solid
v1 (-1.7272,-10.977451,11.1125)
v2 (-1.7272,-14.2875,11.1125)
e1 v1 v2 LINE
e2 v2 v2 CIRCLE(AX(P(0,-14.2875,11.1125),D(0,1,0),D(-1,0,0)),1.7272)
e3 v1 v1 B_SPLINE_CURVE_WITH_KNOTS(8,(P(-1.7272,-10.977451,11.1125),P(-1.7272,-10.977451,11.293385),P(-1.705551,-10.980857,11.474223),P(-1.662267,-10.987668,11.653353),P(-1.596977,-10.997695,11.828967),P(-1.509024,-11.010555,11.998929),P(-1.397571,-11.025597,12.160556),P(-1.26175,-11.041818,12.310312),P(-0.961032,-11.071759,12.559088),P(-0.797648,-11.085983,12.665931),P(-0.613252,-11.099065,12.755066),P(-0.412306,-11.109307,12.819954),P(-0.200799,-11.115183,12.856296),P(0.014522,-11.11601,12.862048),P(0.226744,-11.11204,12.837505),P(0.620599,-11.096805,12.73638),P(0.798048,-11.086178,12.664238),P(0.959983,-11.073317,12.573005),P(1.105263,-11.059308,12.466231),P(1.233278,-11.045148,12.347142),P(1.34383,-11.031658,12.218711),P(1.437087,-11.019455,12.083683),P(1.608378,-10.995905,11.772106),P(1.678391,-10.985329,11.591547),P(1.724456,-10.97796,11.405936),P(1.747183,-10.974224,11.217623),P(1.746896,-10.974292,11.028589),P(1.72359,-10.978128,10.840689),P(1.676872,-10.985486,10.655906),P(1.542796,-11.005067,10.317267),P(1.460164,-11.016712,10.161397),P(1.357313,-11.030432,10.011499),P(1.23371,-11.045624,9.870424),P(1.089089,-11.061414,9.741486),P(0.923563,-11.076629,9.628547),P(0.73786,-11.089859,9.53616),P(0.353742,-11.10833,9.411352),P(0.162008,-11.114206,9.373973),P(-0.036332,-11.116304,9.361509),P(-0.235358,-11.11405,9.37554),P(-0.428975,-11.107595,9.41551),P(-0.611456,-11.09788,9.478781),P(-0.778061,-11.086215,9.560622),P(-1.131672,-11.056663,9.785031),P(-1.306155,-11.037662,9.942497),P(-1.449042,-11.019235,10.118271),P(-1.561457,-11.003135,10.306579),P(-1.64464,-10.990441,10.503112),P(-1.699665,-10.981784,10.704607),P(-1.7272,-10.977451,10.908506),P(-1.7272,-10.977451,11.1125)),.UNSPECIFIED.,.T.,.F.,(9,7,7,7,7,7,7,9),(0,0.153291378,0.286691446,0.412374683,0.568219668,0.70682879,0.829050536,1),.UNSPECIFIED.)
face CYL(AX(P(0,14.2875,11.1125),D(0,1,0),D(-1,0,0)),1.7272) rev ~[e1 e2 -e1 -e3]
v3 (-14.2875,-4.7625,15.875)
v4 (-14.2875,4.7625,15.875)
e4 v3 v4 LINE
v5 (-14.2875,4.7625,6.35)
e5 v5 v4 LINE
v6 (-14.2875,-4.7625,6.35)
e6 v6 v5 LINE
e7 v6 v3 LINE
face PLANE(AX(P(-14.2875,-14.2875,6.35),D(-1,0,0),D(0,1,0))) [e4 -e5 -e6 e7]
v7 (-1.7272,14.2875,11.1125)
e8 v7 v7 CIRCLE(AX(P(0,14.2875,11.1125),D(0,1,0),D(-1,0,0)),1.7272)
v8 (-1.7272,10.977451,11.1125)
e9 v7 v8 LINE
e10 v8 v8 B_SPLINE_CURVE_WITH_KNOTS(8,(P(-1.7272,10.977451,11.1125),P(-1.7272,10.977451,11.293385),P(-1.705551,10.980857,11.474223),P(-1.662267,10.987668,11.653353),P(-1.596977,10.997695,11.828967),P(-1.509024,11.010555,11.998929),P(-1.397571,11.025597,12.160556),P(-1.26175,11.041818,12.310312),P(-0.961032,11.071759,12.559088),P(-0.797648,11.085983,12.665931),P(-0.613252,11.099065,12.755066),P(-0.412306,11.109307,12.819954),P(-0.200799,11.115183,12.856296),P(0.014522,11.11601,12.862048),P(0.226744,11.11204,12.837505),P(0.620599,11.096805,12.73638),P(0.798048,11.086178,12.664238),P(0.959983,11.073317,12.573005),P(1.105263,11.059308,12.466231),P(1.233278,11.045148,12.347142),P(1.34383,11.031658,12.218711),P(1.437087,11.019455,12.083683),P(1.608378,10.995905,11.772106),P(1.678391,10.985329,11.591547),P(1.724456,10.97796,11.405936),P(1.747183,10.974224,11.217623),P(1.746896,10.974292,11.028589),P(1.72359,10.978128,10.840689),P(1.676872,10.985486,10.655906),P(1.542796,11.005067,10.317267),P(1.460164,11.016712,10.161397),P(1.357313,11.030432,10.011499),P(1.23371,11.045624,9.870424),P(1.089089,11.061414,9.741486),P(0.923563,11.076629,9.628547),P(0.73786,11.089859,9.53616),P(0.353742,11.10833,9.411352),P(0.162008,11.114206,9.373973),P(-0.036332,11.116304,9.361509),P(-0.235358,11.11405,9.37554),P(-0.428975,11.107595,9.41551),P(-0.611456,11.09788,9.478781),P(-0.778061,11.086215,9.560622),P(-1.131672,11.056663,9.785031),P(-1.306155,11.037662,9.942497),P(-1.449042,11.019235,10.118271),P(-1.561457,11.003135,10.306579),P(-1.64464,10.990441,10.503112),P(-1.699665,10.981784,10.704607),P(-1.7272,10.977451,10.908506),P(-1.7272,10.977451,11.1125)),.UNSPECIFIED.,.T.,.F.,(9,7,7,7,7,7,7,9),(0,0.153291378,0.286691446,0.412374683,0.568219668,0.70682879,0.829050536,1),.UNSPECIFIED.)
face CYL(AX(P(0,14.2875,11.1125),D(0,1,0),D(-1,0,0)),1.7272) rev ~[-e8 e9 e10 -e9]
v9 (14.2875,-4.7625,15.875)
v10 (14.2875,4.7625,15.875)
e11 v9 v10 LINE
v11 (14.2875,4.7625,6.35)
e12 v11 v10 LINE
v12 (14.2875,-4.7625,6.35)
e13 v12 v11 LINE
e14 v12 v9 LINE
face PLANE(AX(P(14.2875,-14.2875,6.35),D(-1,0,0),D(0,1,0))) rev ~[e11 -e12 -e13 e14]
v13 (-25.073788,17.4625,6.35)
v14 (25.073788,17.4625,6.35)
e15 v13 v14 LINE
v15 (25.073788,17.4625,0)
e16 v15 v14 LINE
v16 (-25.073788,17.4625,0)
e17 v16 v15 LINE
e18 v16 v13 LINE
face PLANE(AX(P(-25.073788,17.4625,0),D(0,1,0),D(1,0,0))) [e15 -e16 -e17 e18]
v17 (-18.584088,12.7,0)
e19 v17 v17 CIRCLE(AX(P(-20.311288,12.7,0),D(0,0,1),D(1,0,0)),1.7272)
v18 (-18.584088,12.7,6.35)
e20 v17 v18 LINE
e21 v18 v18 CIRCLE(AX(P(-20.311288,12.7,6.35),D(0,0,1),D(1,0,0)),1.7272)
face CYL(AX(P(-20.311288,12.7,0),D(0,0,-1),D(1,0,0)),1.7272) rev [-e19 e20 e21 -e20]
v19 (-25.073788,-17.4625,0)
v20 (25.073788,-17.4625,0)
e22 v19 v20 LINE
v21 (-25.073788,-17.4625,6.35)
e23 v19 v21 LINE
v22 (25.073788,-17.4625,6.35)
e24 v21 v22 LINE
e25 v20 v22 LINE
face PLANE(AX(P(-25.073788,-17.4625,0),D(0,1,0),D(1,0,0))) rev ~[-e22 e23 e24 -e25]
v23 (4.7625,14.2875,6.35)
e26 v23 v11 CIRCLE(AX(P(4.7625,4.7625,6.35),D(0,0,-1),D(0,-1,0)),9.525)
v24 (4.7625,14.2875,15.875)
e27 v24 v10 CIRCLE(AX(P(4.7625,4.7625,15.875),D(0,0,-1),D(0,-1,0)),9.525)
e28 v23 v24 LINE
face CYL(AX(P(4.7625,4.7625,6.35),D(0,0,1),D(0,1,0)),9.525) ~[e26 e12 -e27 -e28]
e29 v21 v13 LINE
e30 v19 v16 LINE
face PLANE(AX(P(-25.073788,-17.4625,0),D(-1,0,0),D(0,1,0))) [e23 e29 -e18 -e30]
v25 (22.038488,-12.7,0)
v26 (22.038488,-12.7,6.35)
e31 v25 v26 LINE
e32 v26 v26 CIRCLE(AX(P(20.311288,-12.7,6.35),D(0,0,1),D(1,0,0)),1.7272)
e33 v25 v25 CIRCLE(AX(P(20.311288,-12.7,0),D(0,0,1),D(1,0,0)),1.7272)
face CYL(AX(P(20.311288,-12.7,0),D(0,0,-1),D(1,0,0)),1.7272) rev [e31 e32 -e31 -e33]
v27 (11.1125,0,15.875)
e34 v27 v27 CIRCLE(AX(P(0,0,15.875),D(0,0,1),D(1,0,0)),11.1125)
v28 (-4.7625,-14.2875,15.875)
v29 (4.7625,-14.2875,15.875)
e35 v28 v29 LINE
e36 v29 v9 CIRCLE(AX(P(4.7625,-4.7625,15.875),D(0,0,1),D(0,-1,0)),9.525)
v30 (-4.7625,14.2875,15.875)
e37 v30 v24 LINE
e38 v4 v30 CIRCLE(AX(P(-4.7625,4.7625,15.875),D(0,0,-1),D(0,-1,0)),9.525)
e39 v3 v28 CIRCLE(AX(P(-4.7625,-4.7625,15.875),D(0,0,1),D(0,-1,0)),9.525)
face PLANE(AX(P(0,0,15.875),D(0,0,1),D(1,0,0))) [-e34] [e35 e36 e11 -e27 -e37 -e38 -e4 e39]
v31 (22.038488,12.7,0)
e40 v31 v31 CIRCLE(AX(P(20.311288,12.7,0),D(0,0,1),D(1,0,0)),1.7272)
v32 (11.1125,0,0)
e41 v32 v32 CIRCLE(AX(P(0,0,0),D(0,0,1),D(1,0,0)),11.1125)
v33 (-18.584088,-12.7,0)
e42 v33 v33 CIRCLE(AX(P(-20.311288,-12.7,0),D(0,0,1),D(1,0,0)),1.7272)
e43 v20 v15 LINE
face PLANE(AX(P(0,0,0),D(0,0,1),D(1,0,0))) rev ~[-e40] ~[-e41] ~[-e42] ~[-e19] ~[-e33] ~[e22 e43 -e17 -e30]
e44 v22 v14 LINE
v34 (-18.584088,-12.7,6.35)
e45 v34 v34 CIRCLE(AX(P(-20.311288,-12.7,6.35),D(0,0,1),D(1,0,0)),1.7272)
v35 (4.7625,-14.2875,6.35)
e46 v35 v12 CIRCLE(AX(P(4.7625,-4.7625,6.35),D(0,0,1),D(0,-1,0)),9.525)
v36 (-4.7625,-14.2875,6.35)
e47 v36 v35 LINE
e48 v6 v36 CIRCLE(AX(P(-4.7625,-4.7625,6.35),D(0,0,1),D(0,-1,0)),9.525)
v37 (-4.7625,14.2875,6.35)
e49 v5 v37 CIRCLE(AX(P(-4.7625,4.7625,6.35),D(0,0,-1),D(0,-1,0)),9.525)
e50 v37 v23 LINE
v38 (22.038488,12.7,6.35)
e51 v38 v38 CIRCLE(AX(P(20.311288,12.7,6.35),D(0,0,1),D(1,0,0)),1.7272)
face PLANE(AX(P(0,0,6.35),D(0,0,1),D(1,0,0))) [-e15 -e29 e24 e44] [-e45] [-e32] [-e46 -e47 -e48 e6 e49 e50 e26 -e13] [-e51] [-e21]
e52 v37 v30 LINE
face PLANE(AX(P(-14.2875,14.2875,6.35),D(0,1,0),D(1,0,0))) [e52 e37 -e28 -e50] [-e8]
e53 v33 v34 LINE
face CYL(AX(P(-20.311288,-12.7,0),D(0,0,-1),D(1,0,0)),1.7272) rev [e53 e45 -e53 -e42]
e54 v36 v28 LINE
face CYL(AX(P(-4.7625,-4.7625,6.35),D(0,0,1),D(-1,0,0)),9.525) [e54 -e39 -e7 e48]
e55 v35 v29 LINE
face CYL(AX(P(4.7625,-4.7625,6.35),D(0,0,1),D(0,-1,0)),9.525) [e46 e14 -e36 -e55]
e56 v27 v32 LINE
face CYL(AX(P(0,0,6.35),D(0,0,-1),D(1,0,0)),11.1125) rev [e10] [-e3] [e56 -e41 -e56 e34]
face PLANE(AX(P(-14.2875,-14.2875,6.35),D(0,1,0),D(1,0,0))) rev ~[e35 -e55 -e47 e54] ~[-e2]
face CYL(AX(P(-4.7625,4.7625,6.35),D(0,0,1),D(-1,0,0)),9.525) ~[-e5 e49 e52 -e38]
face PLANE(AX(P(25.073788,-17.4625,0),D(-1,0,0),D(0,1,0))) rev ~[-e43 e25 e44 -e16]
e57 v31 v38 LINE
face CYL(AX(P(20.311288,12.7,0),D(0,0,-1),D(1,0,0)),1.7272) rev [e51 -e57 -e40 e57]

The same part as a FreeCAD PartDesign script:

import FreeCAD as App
import Part
import Sketcher
Q = App.Units.Quantity


def edges_at(feature, points):
    """Names of the edges that pass closest to the given points."""
    edges = feature.Shape.Edges
    near = lambda p: min(range(len(edges)), key=lambda i: edges[i].distToShape(Part.Vertex(*p))[0])
    return sorted({f"Edge{near(p) + 1}" for p in points})

doc = App.newDocument("Part")
body = doc.addObject("PartDesign::Body", "Body")

# Sketch on XY plane
sketch1 = doc.addObject("Sketcher::SketchObject", "Sketch")
body.addObject(sketch1)
sketch1.AttachmentSupport = (doc.XY_Plane, [""])
sketch1.MapMode = "FlatFace"
sketch1.addGeometry(Part.LineSegment(App.Vector(-25.1, 17.5, 0), App.Vector(-25.1, -17.5, 0)), False)
sketch1.addGeometry(Part.LineSegment(App.Vector(-25.1, -17.5, 0), App.Vector(25.1, -17.5, 0)), False)
sketch1.addGeometry(Part.LineSegment(App.Vector(25.1, -17.5, 0), App.Vector(25.1, 17.5, 0)), False)
sketch1.addGeometry(Part.LineSegment(App.Vector(25.1, 17.5, 0), App.Vector(-25.1, 17.5, 0)), False)
sketch1.addGeometry(Part.Circle(App.Vector(-20.3, -12.7, 0), App.Vector(0, 0, 1), 1.7), False)
sketch1.addGeometry(Part.Circle(App.Vector(20.3, -12.7, 0), App.Vector(0, 0, 1), 1.7), False)
sketch1.addGeometry(Part.Circle(App.Vector(0, 0, 0), App.Vector(0, 0, 1), 11.1), False)
sketch1.addGeometry(Part.Circle(App.Vector(-20.3, 12.7, 0), App.Vector(0, 0, 1), 1.7), False)
sketch1.addGeometry(Part.Circle(App.Vector(20.3, 12.7, 0), App.Vector(0, 0, 1), 1.7), False)
sketch1.addConstraint(Sketcher.Constraint("Coincident", 0, 2, 1, 1))
sketch1.addConstraint(Sketcher.Constraint("Coincident", 1, 2, 2, 1))
sketch1.addConstraint(Sketcher.Constraint("Coincident", 2, 2, 3, 1))
sketch1.addConstraint(Sketcher.Constraint("Coincident", 3, 2, 0, 1))
sketch1.addConstraint(Sketcher.Constraint("Vertical", 0))
sketch1.addConstraint(Sketcher.Constraint("Horizontal", 1))
sketch1.addConstraint(Sketcher.Constraint("Vertical", 2))
sketch1.addConstraint(Sketcher.Constraint("Horizontal", 3))
sketch1.addConstraint(Sketcher.Constraint("Coincident", 6, 3, -1, 1))
sketch1.addConstraint(Sketcher.Constraint("Equal", 4, 5))
sketch1.addConstraint(Sketcher.Constraint("Equal", 5, 7))
sketch1.addConstraint(Sketcher.Constraint("Equal", 7, 8))
sketch1.addConstraint(Sketcher.Constraint("Symmetric", 5, 3, 7, 3, -1, 1))
sketch1.addConstraint(Sketcher.Constraint("Symmetric", 4, 3, 8, 3, -1, 1))
sketch1.addConstraint(Sketcher.Constraint("Symmetric", 0, 2, 2, 2, -1, 1))
sketch1.addConstraint(Sketcher.Constraint("Symmetric", 4, 3, 5, 3, -2))
sketch1.addConstraint(Sketcher.Constraint("Diameter", 4, Q("0.136 in")))
sketch1.addConstraint(Sketcher.Constraint("Diameter", 6, Q("0.875 in")))
sketch1.addConstraint(Sketcher.Constraint("DistanceY", 4, 3, 7, 3, Q("1 in")))
sketch1.addConstraint(Sketcher.Constraint("DistanceY", 0, 2, 0, 1, Q("1.375 in")))
sketch1.addConstraint(Sketcher.Constraint("DistanceX", 0, 2, 4, 3, Q("0.1875 in")))
sketch1.addConstraint(Sketcher.Constraint("DistanceX", 1, 1, 1, 2, 50.147576))
pad1 = doc.addObject("PartDesign::Pad", "Pad")
body.addObject(pad1)
pad1.Profile = sketch1
pad1.Length = Q("0.25 in")

# Sketch on XY plane
sketch2 = doc.addObject("Sketcher::SketchObject", "Sketch001")
body.addObject(sketch2)
sketch2.AttachmentSupport = (doc.XY_Plane, [""])
sketch2.MapMode = "FlatFace"
sketch2.AttachmentOffset = App.Placement(App.Vector(0, 0, 0.25 * 25.4), App.Rotation())
sketch2.addGeometry(Part.LineSegment(App.Vector(-14, 14, 0), App.Vector(-14, -14, 0)), False)
sketch2.addGeometry(Part.LineSegment(App.Vector(-14, -14, 0), App.Vector(14, -14, 0)), False)
sketch2.addGeometry(Part.LineSegment(App.Vector(14, -14, 0), App.Vector(14, 14, 0)), False)
sketch2.addGeometry(Part.LineSegment(App.Vector(14, 14, 0), App.Vector(-14, 14, 0)), False)
sketch2.addGeometry(Part.Circle(App.Vector(0, 0, 0), App.Vector(0, 0, 1), 11), False)
sketch2.addConstraint(Sketcher.Constraint("Coincident", 0, 2, 1, 1))
sketch2.addConstraint(Sketcher.Constraint("Coincident", 1, 2, 2, 1))
sketch2.addConstraint(Sketcher.Constraint("Coincident", 2, 2, 3, 1))
sketch2.addConstraint(Sketcher.Constraint("Coincident", 3, 2, 0, 1))
sketch2.addConstraint(Sketcher.Constraint("Vertical", 0))
sketch2.addConstraint(Sketcher.Constraint("Horizontal", 1))
sketch2.addConstraint(Sketcher.Constraint("Vertical", 2))
sketch2.addConstraint(Sketcher.Constraint("Horizontal", 3))
sketch2.addConstraint(Sketcher.Constraint("Coincident", 4, 3, -1, 1))
sketch2.addConstraint(Sketcher.Constraint("Symmetric", 0, 2, 2, 2, -1, 1))
sketch2.addConstraint(Sketcher.Constraint("Equal", 3, 0))
sketch2.addConstraint(Sketcher.Constraint("Diameter", 4, Q("0.875 in")))
sketch2.addConstraint(Sketcher.Constraint("DistanceX", 1, 1, 1, 2, Q("1.125 in")))
pad2 = doc.addObject("PartDesign::Pad", "Pad001")
body.addObject(pad2)
pad2.Profile = sketch2
pad2.Length = Q("0.375 in")

# Sketch on XZ plane
sketch3 = doc.addObject("Sketcher::SketchObject", "Sketch002")
body.addObject(sketch3)
sketch3.AttachmentSupport = (doc.XZ_Plane, [""])
sketch3.MapMode = "FlatFace"
sketch3.AttachmentOffset = App.Placement(App.Vector(0, 0, -0.5625 * 25.4), App.Rotation())
sketch3.addGeometry(Part.Circle(App.Vector(0, 11.1, 0), App.Vector(0, 0, 1), 1.7), False)
sketch3.addConstraint(Sketcher.Constraint("PointOnObject", 0, 3, -2))
sketch3.addConstraint(Sketcher.Constraint("Diameter", 0, Q("0.136 in")))
sketch3.addConstraint(Sketcher.Constraint("DistanceY", -1, 1, 0, 3, Q("0.4375 in")))
pocket1 = doc.addObject("PartDesign::Pocket", "Pocket")
body.addObject(pocket1)
pocket1.Profile = sketch3
pocket1.Type = "ThroughAll"
pocket1.Reversed = True
doc.recompute()

fillet = doc.addObject("PartDesign::Fillet", "Fillet")
body.addObject(fillet)
fillet.Base = (pocket1, edges_at(pocket1, [
    (-14.287, -14.287, 11.113),
    (14.287, -14.287, 11.113),
    (14.287, 14.287, 11.113),
    (-14.287, 14.287, 11.113),
]))
fillet.Radius = Q("0.375 in")

doc.recompute()
